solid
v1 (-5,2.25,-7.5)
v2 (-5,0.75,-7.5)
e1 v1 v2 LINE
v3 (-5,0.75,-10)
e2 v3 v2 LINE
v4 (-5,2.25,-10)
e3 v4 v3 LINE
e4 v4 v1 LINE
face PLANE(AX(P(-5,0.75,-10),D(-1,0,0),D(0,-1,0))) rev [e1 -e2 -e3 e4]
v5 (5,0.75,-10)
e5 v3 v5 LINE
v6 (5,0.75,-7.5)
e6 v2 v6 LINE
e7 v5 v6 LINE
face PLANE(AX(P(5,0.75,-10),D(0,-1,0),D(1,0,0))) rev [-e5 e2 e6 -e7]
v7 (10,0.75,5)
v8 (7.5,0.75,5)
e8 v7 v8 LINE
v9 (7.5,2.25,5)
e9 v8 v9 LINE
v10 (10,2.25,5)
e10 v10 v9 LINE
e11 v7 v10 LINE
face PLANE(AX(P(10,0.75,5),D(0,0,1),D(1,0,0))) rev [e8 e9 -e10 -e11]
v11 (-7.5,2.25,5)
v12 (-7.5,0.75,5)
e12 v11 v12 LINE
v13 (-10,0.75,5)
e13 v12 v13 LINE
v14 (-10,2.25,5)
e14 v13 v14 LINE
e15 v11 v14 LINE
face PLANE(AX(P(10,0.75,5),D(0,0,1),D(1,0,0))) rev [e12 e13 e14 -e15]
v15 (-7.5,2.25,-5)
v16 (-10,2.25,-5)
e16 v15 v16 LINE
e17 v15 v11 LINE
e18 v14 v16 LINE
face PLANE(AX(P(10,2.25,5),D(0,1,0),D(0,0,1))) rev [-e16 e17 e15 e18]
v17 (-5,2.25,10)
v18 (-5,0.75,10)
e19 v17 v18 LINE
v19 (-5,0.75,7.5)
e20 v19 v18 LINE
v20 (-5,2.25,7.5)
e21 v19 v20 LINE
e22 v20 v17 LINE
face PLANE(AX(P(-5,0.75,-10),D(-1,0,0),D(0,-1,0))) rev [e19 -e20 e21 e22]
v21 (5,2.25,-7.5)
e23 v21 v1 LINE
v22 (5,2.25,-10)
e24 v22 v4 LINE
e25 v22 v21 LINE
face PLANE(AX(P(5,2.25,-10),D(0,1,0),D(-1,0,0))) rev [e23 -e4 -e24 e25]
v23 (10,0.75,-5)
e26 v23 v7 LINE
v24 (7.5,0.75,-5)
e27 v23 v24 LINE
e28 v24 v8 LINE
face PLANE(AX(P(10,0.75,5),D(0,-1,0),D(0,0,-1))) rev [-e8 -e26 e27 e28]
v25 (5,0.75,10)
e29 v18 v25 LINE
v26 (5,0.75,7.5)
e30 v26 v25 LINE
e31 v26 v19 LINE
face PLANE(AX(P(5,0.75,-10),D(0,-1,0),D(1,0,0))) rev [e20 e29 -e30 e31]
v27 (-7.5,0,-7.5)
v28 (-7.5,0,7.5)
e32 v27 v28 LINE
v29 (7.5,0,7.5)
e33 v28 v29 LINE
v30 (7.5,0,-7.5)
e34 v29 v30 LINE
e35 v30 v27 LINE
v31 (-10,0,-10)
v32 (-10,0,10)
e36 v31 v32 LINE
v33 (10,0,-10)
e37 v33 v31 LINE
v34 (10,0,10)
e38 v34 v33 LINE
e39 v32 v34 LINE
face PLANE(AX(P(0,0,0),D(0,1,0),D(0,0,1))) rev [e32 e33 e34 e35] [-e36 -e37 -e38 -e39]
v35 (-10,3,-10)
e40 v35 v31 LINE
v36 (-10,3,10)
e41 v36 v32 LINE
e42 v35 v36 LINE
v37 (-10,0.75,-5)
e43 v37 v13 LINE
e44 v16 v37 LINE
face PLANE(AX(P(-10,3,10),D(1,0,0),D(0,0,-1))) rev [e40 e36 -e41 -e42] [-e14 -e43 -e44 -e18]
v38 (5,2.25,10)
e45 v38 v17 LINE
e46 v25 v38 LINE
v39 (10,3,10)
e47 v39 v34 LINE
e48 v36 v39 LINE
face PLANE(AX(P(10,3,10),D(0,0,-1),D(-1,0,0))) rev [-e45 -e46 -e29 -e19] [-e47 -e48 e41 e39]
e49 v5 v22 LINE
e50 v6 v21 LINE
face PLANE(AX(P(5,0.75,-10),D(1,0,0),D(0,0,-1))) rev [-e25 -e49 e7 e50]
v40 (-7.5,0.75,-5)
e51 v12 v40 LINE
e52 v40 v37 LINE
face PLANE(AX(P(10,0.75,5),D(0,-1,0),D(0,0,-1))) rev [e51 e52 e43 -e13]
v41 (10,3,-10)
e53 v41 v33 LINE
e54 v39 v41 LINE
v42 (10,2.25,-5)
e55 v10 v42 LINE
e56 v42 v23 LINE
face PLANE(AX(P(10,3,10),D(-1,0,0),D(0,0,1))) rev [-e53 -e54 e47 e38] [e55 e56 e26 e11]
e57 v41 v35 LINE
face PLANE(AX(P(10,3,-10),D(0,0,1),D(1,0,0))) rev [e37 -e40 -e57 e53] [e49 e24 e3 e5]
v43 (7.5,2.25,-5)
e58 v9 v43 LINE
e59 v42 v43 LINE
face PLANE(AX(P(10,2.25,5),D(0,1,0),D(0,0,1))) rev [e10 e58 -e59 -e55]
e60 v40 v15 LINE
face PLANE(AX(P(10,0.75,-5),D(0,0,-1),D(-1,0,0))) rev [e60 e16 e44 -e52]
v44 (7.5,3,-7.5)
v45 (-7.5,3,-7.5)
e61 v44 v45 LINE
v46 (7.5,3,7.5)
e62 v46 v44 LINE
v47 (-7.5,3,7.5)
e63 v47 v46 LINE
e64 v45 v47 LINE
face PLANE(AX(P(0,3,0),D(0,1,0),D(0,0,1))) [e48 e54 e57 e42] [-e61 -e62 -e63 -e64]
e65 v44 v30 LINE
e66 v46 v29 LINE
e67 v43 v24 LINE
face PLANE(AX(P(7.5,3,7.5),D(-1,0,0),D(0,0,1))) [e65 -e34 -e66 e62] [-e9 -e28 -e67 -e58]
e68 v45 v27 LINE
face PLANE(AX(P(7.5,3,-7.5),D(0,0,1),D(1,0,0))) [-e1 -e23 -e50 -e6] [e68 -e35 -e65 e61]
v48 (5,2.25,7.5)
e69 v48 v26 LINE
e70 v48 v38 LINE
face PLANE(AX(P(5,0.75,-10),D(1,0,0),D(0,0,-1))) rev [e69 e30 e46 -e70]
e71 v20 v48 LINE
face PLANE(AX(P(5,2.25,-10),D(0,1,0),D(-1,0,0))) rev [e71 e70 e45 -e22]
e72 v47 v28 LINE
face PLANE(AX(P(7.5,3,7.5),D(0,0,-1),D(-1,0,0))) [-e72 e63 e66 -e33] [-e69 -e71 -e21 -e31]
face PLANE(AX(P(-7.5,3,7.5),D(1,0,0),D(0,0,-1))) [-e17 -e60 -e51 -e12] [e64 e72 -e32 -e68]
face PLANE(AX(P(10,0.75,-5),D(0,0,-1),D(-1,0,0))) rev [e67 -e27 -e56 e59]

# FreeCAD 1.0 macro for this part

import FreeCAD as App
import Part
import Sketcher
from FreeCAD import Vector
Q = App.Units.Quantity


def add_polygon(sketch, points):
    """Adds a closed chain of lines whose ends are joined by coincident constraints."""
    first, n = sketch.GeometryCount, len(points)
    for a, b in zip(points, points[1:] + points[:1]):
        sketch.addGeometry(Part.LineSegment(App.Vector(*a, 0), App.Vector(*b, 0)), False)
    for i in range(n):
        sketch.addConstraint(Sketcher.Constraint("Coincident", first + i, 2, first + (i + 1) % n, 1))

doc = App.newDocument("Part")
body = doc.addObject("PartDesign::Body", "Body")

sketch1 = doc.addObject("Sketcher::SketchObject", "Sketch")
body.addObject(sketch1)
sketch1.AttachmentSupport = (doc.XZ_Plane, [""])
sketch1.MapMode = "FlatFace"
add_polygon(sketch1, [(-10, -10), (-10, 10), (10, 10), (10, -10)])
add_polygon(sketch1, [(7.5, 7.5), (-7.5, 7.5), (-7.5, -7.5), (7.5, -7.5)])
sketch1.addConstraint([
    Sketcher.Constraint("Vertical", 0),
    Sketcher.Constraint("Horizontal", 1),
    Sketcher.Constraint("Vertical", 2),
    Sketcher.Constraint("Horizontal", 3),
    Sketcher.Constraint("Horizontal", 4),
    Sketcher.Constraint("Vertical", 5),
    Sketcher.Constraint("Horizontal", 6),
    Sketcher.Constraint("Vertical", 7),
    Sketcher.Constraint("Symmetric", 0, 2, 2, 2, -1, 1),
    Sketcher.Constraint("Symmetric", 4, 2, 6, 2, -1, 1),
    Sketcher.Constraint("Equal", 3, 0),
    Sketcher.Constraint("Equal", 6, 5),
    Sketcher.Constraint("DistanceX", 1, 1, 1, 2, Q("20 mm")),
    Sketcher.Constraint("DistanceX", 4, 2, 4, 1, Q("15 mm")),
])
pad1 = doc.addObject("PartDesign::Pad", "Pad")
body.addObject(pad1)
pad1.Profile = sketch1
pad1.Length = 3
pad1.Reversed = True

sketch2 = doc.addObject("Sketcher::SketchObject", "Sketch001")
body.addObject(sketch2)
sketch2.AttachmentSupport = (doc.XY_Plane, [""])
sketch2.MapMode = "FlatFace"
sketch2.AttachmentOffset = App.Placement(Vector(0, 0, 10), App.Rotation())
add_polygon(sketch2, [(-5, 2.25), (-5, 0.75), (5, 0.75), (5, 2.25)])
sketch2.addConstraint([
    Sketcher.Constraint("Vertical", 0),
    Sketcher.Constraint("Horizontal", 1),
    Sketcher.Constraint("Vertical", 2),
    Sketcher.Constraint("Horizontal", 3),
    Sketcher.Constraint("DistanceX", 1, 1, 1, 2, Q("10 mm")),
    Sketcher.Constraint("DistanceY", 0, 2, 0, 1, Q("1.5 mm")),
    Sketcher.Constraint("DistanceX", 0, 2, -1, 1, Q("5 mm")),
    Sketcher.Constraint("DistanceY", -1, 1, 0, 2, Q("0.75 mm")),
])
pocket1 = doc.addObject("PartDesign::Pocket", "Pocket")
body.addObject(pocket1)
pocket1.Profile = sketch2
pocket1.Type = "ThroughAll"

sketch3 = doc.addObject("Sketcher::SketchObject", "Sketch002")
body.addObject(sketch3)
sketch3.AttachmentSupport = (doc.YZ_Plane, [""])
sketch3.MapMode = "FlatFace"
sketch3.AttachmentOffset = App.Placement(Vector(0, 0, -10), App.Rotation())
add_polygon(sketch3, [(2.25, -5), (0.75, -5), (0.75, 5), (2.25, 5)])
sketch3.addConstraint([
    Sketcher.Constraint("Horizontal", 0),
    Sketcher.Constraint("Vertical", 1),
    Sketcher.Constraint("Horizontal", 2),
    Sketcher.Constraint("Vertical", 3),
    Sketcher.Constraint("DistanceY", 1, 1, 1, 2, Q("10 mm")),
    Sketcher.Constraint("DistanceX", 0, 2, 0, 1, Q("1.5 mm")),
    Sketcher.Constraint("DistanceY", 0, 2, -1, 1, Q("5 mm")),
    Sketcher.Constraint("DistanceX", -1, 1, 0, 2, Q("0.75 mm")),
])
pocket2 = doc.addObject("PartDesign::Pocket", "Pocket001")
body.addObject(pocket2)
pocket2.Profile = sketch3
pocket2.Type = "ThroughAll"
pocket2.Reversed = True

doc.recompute()
